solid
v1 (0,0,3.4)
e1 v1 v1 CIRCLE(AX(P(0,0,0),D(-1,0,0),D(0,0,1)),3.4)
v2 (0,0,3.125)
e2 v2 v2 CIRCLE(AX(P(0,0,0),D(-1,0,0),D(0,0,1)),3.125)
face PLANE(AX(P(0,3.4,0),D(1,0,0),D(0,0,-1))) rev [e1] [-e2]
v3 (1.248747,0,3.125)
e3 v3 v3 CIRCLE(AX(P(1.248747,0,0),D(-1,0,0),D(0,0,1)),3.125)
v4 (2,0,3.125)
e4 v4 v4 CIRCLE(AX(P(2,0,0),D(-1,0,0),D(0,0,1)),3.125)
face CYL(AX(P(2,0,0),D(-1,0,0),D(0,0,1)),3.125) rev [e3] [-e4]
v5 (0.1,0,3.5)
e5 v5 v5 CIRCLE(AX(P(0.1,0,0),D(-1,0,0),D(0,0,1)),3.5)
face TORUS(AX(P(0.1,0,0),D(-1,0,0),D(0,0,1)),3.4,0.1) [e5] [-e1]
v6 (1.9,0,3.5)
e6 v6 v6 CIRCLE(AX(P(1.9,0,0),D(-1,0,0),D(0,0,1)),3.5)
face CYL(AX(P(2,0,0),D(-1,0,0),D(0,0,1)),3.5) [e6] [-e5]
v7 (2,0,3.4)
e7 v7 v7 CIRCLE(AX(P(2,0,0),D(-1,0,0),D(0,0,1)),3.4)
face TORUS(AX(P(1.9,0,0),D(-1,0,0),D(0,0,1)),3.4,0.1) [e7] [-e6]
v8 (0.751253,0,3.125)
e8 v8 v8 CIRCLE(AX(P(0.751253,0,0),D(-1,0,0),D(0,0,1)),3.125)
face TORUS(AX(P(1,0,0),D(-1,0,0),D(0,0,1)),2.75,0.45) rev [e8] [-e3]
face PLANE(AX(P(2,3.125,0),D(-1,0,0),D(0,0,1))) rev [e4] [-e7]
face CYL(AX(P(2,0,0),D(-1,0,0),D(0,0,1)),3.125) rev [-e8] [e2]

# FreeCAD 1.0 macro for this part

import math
import FreeCAD as App
import Part
import Sketcher
from FreeCAD import Vector

doc = App.newDocument("Part")
params = doc.addObject("Spreadsheet::Sheet", "Params")
for row, (alias, value) in enumerate([
    ("sketch1_radius", "0.1 mm"),
    ("sketch1_radius2", "0.45 mm"),
    ("sketch1_width", "1.8 mm"),
    ("revolution_angle", "360 deg"),
], start=1):
    params.set(f"A{row}", alias)
    params.set(f"B{row}", "=" + value)
    params.setAlias(f"B{row}", alias)

body = doc.addObject("PartDesign::Body", "Body")

# Sketch on XY plane
sketch1 = body.newObject("Sketcher::SketchObject", "Sketch")
sketch1.AttachmentSupport = (doc.getObject("XY_Plane"), [""])
sketch1.MapMode = "FlatFace"
sketch1.addGeometry(Part.LineSegment(Vector(0, 3.4, 0), Vector(0, 3.12, 0)), False)
sketch1.addGeometry(Part.LineSegment(Vector(0, 3.12, 0), Vector(0.75, 3.12, 0)), False)
sketch1.addGeometry(Part.ArcOfCircle(Part.Circle(Vector(1, 2.75, 0), Vector(0, 0, 1), 0.45), math.radians(56), math.radians(124)), False)
sketch1.addGeometry(Part.LineSegment(Vector(1.25, 3.12, 0), Vector(2, 3.12, 0)), False)
sketch1.addGeometry(Part.LineSegment(Vector(2, 3.12, 0), Vector(2, 3.4, 0)), False)
sketch1.addGeometry(Part.ArcOfCircle(Part.Circle(Vector(1.9, 3.4, 0), Vector(0, 0, 1), 0.1), math.radians(0), math.radians(90)), False)
sketch1.addGeometry(Part.LineSegment(Vector(1.9, 3.5, 0), Vector(0.1, 3.5, 0)), False)
sketch1.addGeometry(Part.ArcOfCircle(Part.Circle(Vector(0.1, 3.4, 0), Vector(0, 0, 1), 0.1), math.radians(90), math.radians(180)), False)
sketch1.addConstraint(Sketcher.Constraint("Coincident", 0, 2, 1, 1))
sketch1.addConstraint(Sketcher.Constraint("Coincident", 1, 2, 2, 2))
sketch1.addConstraint(Sketcher.Constraint("Coincident", 2, 1, 3, 1))
sketch1.addConstraint(Sketcher.Constraint("Coincident", 3, 2, 4, 1))
sketch1.addConstraint(Sketcher.Constraint("Tangent", 4, 2, 5, 1))
sketch1.addConstraint(Sketcher.Constraint("Tangent", 5, 2, 6, 1))
sketch1.addConstraint(Sketcher.Constraint("Tangent", 6, 2, 7, 1))
sketch1.addConstraint(Sketcher.Constraint("Tangent", 7, 2, 0, 1))
sketch1.addConstraint(Sketcher.Constraint("Vertical", 0))
sketch1.addConstraint(Sketcher.Constraint("Horizontal", 1))
sketch1.addConstraint(Sketcher.Constraint("Horizontal", 3))
sketch1.addConstraint(Sketcher.Constraint("Vertical", 4))
sketch1.addConstraint(Sketcher.Constraint("Horizontal", 6))
sketch1.addConstraint(Sketcher.Constraint("Equal", 5, 7))
sketch1.addConstraint(Sketcher.Constraint("PointOnObject", 0, 2, -2))
sketch1.addConstraint(Sketcher.Constraint("Horizontal", 1, 2, 2, 1))
sketch1.addConstraint(Sketcher.Constraint("Equal", 1, 3))
sketch1.addConstraint(Sketcher.Constraint("Radius", 5, 0.1))
sketch1.addConstraint(Sketcher.Constraint("Radius", 2, 0.45))
sketch1.addConstraint(Sketcher.Constraint("DistanceX", 6, 2, 6, 1, 1.8))
sketch1.addConstraint(Sketcher.Constraint("DistanceY", -1, 1, 5, 3, 3.4))
sketch1.addConstraint(Sketcher.Constraint("DistanceY", 0, 2, 0, 1, 0.275))
sketch1.addConstraint(Sketcher.Constraint("DistanceY", -1, 1, 2, 3, 2.75))
sketch1.setExpression("Constraints[17]", "Params.sketch1_radius")
sketch1.setExpression("Constraints[18]", "Params.sketch1_radius2")
sketch1.setExpression("Constraints[19]", "Params.sketch1_width")
revolution = body.newObject("PartDesign::Revolution", "Revolution")
revolution.Profile = sketch1
revolution.ReferenceAxis = (sketch1, ["H_Axis"])
revolution.setExpression("Angle", "Params.revolution_angle")

doc.recompute()
